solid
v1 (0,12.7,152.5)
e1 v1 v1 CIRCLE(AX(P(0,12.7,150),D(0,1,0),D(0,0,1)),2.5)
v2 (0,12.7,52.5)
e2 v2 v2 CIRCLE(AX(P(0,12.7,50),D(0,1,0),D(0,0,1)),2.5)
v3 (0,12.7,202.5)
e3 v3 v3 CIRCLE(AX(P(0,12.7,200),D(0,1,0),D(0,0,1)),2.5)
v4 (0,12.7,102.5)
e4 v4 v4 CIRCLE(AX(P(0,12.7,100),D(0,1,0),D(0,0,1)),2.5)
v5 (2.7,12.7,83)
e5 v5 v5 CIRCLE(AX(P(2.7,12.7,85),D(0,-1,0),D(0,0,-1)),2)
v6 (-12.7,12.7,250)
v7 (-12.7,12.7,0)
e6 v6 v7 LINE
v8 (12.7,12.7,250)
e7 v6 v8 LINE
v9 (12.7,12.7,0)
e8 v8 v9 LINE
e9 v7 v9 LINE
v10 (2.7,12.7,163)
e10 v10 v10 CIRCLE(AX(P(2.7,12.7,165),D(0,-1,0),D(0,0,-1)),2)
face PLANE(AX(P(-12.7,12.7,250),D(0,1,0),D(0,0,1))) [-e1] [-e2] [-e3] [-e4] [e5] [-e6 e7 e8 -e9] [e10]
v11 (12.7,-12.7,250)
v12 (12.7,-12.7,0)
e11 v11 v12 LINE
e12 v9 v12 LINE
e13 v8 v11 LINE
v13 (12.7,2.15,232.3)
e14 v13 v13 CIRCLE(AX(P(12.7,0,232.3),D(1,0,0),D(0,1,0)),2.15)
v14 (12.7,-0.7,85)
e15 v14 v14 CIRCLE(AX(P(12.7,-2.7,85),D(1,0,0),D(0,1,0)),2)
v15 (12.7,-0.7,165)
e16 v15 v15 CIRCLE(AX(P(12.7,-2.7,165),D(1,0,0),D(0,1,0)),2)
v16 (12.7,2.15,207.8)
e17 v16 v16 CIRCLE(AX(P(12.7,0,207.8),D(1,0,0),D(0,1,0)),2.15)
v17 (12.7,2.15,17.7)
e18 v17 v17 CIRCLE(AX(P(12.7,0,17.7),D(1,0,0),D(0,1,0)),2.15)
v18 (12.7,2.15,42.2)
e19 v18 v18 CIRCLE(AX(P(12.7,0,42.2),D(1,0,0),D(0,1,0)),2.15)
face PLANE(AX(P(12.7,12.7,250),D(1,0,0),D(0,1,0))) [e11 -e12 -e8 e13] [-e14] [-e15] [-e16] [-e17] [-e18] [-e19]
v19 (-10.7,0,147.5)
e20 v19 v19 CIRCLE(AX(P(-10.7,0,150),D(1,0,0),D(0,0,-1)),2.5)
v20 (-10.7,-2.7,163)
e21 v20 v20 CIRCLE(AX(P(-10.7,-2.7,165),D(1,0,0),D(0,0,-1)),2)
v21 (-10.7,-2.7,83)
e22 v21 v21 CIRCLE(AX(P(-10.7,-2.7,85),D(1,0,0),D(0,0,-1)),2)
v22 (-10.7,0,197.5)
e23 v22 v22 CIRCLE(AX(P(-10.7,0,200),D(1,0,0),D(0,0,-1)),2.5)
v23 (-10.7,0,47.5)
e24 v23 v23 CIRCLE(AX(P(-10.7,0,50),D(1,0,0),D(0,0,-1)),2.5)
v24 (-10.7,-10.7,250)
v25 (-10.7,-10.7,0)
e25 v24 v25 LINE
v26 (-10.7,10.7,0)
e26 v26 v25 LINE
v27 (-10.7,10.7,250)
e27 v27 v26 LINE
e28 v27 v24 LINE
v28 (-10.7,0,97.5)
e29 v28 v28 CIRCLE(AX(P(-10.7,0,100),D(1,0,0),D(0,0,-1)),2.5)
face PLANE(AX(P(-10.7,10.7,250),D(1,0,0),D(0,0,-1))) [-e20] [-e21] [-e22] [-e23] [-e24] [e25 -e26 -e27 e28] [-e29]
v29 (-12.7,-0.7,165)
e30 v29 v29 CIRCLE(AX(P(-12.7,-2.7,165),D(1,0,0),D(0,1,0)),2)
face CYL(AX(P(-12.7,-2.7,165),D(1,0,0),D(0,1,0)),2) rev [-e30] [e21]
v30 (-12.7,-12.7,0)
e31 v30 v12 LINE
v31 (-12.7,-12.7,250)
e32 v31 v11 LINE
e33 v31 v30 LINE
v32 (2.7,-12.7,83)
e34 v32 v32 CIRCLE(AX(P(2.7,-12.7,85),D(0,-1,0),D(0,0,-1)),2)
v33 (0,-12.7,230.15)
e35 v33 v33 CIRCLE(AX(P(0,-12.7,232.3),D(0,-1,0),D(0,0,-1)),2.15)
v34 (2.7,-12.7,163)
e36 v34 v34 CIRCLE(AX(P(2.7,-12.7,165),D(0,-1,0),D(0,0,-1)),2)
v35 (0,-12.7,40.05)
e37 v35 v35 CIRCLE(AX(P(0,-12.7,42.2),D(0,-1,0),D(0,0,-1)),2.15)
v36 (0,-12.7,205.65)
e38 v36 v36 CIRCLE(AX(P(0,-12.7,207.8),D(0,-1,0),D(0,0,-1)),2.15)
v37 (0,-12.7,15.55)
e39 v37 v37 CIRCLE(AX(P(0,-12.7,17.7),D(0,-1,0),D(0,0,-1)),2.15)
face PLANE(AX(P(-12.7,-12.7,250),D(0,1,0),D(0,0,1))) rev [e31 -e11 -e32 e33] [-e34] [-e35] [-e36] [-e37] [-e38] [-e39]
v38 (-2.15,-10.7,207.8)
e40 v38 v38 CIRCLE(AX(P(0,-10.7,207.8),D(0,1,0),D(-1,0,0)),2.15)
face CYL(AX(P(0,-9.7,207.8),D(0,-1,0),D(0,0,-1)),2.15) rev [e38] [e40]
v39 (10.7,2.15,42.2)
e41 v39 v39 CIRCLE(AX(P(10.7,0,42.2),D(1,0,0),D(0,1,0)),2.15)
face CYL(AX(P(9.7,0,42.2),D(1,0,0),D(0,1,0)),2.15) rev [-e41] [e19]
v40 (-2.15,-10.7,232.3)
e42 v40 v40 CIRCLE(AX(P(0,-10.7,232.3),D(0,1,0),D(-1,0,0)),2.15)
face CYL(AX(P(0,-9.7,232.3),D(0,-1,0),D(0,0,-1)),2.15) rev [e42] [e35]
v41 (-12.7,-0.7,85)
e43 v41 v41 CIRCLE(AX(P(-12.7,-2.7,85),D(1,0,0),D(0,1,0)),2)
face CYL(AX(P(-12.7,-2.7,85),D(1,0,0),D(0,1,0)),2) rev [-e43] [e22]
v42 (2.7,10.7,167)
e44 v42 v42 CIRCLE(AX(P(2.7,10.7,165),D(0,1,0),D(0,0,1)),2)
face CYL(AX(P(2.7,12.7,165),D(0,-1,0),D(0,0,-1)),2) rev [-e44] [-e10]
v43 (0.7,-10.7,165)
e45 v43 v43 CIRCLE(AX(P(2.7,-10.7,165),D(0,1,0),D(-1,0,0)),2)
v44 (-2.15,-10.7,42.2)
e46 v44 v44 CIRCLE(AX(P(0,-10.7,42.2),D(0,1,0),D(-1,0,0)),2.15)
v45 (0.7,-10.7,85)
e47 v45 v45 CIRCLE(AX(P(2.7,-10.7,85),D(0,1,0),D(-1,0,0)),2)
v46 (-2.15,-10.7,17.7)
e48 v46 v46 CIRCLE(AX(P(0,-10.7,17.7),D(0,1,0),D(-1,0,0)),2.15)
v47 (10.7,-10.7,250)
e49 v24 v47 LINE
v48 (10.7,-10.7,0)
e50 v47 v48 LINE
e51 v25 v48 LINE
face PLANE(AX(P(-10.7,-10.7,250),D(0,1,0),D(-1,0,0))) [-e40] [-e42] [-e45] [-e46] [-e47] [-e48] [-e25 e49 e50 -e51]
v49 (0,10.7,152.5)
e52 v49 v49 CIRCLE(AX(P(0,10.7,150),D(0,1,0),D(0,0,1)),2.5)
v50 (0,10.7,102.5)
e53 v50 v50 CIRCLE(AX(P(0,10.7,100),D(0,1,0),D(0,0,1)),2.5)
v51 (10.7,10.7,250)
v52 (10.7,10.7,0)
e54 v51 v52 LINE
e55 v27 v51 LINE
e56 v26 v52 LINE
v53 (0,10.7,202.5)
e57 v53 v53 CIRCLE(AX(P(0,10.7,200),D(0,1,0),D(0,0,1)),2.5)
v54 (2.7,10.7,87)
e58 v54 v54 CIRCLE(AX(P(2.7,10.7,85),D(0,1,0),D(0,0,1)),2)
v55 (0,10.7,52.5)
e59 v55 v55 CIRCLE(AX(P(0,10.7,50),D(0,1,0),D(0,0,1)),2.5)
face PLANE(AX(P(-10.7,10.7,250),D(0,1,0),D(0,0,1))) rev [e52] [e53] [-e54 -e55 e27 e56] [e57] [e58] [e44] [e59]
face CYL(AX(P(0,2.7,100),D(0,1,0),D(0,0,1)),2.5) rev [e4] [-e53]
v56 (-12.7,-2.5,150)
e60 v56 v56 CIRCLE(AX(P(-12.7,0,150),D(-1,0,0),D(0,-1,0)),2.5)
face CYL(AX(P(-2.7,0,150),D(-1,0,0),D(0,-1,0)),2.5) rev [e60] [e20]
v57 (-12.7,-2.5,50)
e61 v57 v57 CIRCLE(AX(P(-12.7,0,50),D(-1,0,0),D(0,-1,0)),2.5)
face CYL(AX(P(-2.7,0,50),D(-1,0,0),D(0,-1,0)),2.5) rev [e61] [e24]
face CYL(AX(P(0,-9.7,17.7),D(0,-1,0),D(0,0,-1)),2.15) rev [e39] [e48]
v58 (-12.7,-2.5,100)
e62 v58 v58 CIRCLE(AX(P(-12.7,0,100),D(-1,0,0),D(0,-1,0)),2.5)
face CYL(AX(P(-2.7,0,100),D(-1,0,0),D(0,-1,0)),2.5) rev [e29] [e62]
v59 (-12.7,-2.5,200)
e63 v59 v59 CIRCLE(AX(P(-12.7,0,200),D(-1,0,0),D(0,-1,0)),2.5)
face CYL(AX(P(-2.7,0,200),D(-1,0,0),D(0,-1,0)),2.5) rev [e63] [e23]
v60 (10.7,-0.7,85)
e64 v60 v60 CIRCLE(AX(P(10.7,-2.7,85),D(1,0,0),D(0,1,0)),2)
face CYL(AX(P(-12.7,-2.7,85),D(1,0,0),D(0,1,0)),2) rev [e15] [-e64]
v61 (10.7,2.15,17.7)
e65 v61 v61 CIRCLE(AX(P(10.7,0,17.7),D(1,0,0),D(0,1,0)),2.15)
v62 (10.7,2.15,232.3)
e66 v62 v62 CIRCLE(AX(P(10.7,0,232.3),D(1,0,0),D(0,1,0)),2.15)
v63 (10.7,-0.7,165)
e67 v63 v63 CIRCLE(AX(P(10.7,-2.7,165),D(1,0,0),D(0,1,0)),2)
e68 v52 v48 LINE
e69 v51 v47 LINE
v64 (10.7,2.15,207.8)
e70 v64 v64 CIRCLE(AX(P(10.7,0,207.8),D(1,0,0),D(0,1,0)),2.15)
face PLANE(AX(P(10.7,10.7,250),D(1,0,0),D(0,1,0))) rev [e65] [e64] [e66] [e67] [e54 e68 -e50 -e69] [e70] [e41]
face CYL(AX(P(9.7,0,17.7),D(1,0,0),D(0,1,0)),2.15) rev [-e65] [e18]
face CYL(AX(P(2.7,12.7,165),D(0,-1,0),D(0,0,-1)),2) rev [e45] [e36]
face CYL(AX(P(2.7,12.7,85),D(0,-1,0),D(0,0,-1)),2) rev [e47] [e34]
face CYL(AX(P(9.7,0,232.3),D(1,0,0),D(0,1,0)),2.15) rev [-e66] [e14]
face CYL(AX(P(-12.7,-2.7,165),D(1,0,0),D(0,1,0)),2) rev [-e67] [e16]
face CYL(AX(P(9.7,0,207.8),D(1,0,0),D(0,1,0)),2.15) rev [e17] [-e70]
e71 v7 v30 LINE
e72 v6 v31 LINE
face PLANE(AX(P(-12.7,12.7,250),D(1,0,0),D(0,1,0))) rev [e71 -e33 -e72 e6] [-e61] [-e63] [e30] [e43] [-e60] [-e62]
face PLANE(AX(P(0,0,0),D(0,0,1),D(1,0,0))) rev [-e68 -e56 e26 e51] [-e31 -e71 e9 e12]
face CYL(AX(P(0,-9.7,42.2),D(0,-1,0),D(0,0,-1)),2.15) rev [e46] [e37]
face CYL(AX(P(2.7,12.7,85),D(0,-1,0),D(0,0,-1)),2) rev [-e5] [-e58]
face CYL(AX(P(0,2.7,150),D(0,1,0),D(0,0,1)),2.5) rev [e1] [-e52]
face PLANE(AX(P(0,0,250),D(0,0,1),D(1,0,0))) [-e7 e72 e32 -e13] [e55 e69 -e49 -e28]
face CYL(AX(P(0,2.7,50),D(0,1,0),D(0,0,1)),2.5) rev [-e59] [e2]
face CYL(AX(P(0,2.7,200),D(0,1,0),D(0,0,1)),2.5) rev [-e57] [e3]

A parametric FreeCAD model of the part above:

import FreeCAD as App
import Part
import Sketcher
Q = App.Units.Quantity


def add_polygon(sketch, points):
    """Adds a closed chain of lines whose ends are joined by coincident constraints."""
    first, n = sketch.GeometryCount, len(points)
    for a, b in zip(points, points[1:] + points[:1]):
        sketch.addGeometry(Part.LineSegment(App.Vector(*a, 0), App.Vector(*b, 0)), False)
    for i in range(n):
        sketch.addConstraint(Sketcher.Constraint("Coincident", first + i, 2, first + (i + 1) % n, 1))

doc = App.newDocument("Part")
body = doc.addObject("PartDesign::Body", "Body")

# Sketch on XY plane
sketch1 = body.newObject("Sketcher::SketchObject", "Sketch")
sketch1.AttachmentSupport = (doc.getObject("XY_Plane"), [""])
sketch1.MapMode = "FlatFace"
add_polygon(sketch1, [(-13, 13), (-13, -13), (13, -13), (13, 13)])  # lines 0-3
sketch1.addConstraint(Sketcher.Constraint("Vertical", 0))
sketch1.addConstraint(Sketcher.Constraint("Horizontal", 1))
sketch1.addConstraint(Sketcher.Constraint("Vertical", 2))
sketch1.addConstraint(Sketcher.Constraint("Horizontal", 3))
sketch1.addConstraint(Sketcher.Constraint("Symmetric", 0, 2, 2, 2, -1, 1))
sketch1.addConstraint(Sketcher.Constraint("Equal", 3, 0))
sketch1.addConstraint(Sketcher.Constraint("DistanceX", 1, 1, 1, 2, Q("25.4 mm")))
pad1 = body.newObject("PartDesign::Pad", "Pad")
pad1.Profile = sketch1
pad1.Length = 250

# Sketch on XY plane
sketch2 = body.newObject("Sketcher::SketchObject", "Sketch001")
sketch2.AttachmentSupport = (doc.getObject("XY_Plane"), [""])
sketch2.MapMode = "FlatFace"
add_polygon(sketch2, [(-11, 11), (-11, -11), (11, -11), (11, 11)])  # lines 0-3
sketch2.addConstraint(Sketcher.Constraint("Vertical", 0))
sketch2.addConstraint(Sketcher.Constraint("Horizontal", 1))
sketch2.addConstraint(Sketcher.Constraint("Vertical", 2))
sketch2.addConstraint(Sketcher.Constraint("Horizontal", 3))
sketch2.addConstraint(Sketcher.Constraint("Symmetric", 0, 2, 2, 2, -1, 1))
sketch2.addConstraint(Sketcher.Constraint("Equal", 3, 0))
sketch2.addConstraint(Sketcher.Constraint("DistanceX", 1, 1, 1, 2, Q("21.4 mm")))
pocket1 = body.newObject("PartDesign::Pocket", "Pocket")
pocket1.Profile = sketch2
pocket1.Type = "ThroughAll"
pocket1.Reversed = True

# Sketch on YZ plane
sketch3 = body.newObject("Sketcher::SketchObject", "Sketch002")
sketch3.AttachmentSupport = (doc.getObject("YZ_Plane"), [""])
sketch3.MapMode = "FlatFace"
sketch3.AttachmentOffset = App.Placement(App.Vector(0, 0, 12.7), App.Rotation())
sketch3.addGeometry(Part.Circle(App.Vector(0, 232.3, 0), App.Vector(0, 0, 1), 2.1), False)
sketch3.addGeometry(Part.Circle(App.Vector(0, 207.8, 0), App.Vector(0, 0, 1), 2.1), False)
sketch3.addConstraint(Sketcher.Constraint("Equal", 0, 1))
sketch3.addConstraint(Sketcher.Constraint("PointOnObject", 0, 3, -2))
sketch3.addConstraint(Sketcher.Constraint("PointOnObject", 1, 3, -2))
sketch3.addConstraint(Sketcher.Constraint("Diameter", 0, Q("4.3 mm")))
sketch3.addConstraint(Sketcher.Constraint("DistanceY", -1, 1, 0, 3, Q("232.3 mm")))
sketch3.addConstraint(Sketcher.Constraint("DistanceY", -1, 1, 1, 3, Q("207.8 mm")))
pocket2 = body.newObject("PartDesign::Pocket", "Pocket001")
pocket2.Profile = sketch3
pocket2.Length = 3

# Sketch on XZ plane
sketch4 = body.newObject("Sketcher::SketchObject", "Sketch003")
sketch4.AttachmentSupport = (doc.getObject("XZ_Plane"), [""])
sketch4.MapMode = "FlatFace"
sketch4.AttachmentOffset = App.Placement(App.Vector(0, 0, 12.7), App.Rotation())
sketch4.addGeometry(Part.Circle(App.Vector(0, 232.3, 0), App.Vector(0, 0, 1), 2.1), False)
sketch4.addGeometry(Part.Circle(App.Vector(0, 207.8, 0), App.Vector(0, 0, 1), 2.1), False)
sketch4.addConstraint(Sketcher.Constraint("Equal", 0, 1))
sketch4.addConstraint(Sketcher.Constraint("PointOnObject", 0, 3, -2))
sketch4.addConstraint(Sketcher.Constraint("PointOnObject", 1, 3, -2))
sketch4.addConstraint(Sketcher.Constraint("Diameter", 0, Q("4.3 mm")))
sketch4.addConstraint(Sketcher.Constraint("DistanceY", -1, 1, 0, 3, Q("232.3 mm")))
sketch4.addConstraint(Sketcher.Constraint("DistanceY", -1, 1, 1, 3, Q("207.8 mm")))
pocket3 = body.newObject("PartDesign::Pocket", "Pocket002")
pocket3.Profile = sketch4
pocket3.Length = 3

# Sketch on YZ plane
sketch5 = body.newObject("Sketcher::SketchObject", "Sketch004")
sketch5.AttachmentSupport = (doc.getObject("YZ_Plane"), [""])
sketch5.MapMode = "FlatFace"
sketch5.AttachmentOffset = App.Placement(App.Vector(0, 0, 12.7), App.Rotation())
sketch5.addGeometry(Part.Circle(App.Vector(0, 42.2, 0), App.Vector(0, 0, 1), 2.1), False)
sketch5.addGeometry(Part.Circle(App.Vector(0, 17.7, 0), App.Vector(0, 0, 1), 2.1), False)
sketch5.addConstraint(Sketcher.Constraint("Equal", 0, 1))
sketch5.addConstraint(Sketcher.Constraint("PointOnObject", 0, 3, -2))
sketch5.addConstraint(Sketcher.Constraint("PointOnObject", 1, 3, -2))
sketch5.addConstraint(Sketcher.Constraint("Diameter", 0, Q("4.3 mm")))
sketch5.addConstraint(Sketcher.Constraint("DistanceY", -1, 1, 0, 3, Q("42.2 mm")))
sketch5.addConstraint(Sketcher.Constraint("DistanceY", -1, 1, 1, 3, Q("17.7 mm")))
pocket4 = body.newObject("PartDesign::Pocket", "Pocket003")
pocket4.Profile = sketch5
pocket4.Length = 3

# Sketch on XZ plane
sketch6 = body.newObject("Sketcher::SketchObject", "Sketch005")
sketch6.AttachmentSupport = (doc.getObject("XZ_Plane"), [""])
sketch6.MapMode = "FlatFace"
sketch6.AttachmentOffset = App.Placement(App.Vector(0, 0, 12.7), App.Rotation())
sketch6.addGeometry(Part.Circle(App.Vector(0, 42.2, 0), App.Vector(0, 0, 1), 2.2), False)
sketch6.addGeometry(Part.Circle(App.Vector(0, 17.7, 0), App.Vector(0, 0, 1), 2.2), False)
sketch6.addConstraint(Sketcher.Constraint("Equal", 0, 1))
sketch6.addConstraint(Sketcher.Constraint("PointOnObject", 0, 3, -2))
sketch6.addConstraint(Sketcher.Constraint("PointOnObject", 1, 3, -2))
sketch6.addConstraint(Sketcher.Constraint("Diameter", 0, Q("4.3 mm")))
sketch6.addConstraint(Sketcher.Constraint("DistanceY", -1, 1, 0, 3, Q("42.2 mm")))
sketch6.addConstraint(Sketcher.Constraint("DistanceY", -1, 1, 1, 3, Q("17.7 mm")))
pocket5 = body.newObject("PartDesign::Pocket", "Pocket004")
pocket5.Profile = sketch6
pocket5.Length = 3

# Sketch on YZ plane
sketch7 = body.newObject("Sketcher::SketchObject", "Sketch006")
sketch7.AttachmentSupport = (doc.getObject("YZ_Plane"), [""])
sketch7.MapMode = "FlatFace"
sketch7.AttachmentOffset = App.Placement(App.Vector(0, 0, -12.7), App.Rotation())
sketch7.addGeometry(Part.Circle(App.Vector(0, 100, 0), App.Vector(0, 0, 1), 2.5), False)
sketch7.addGeometry(Part.Circle(App.Vector(0, 150, 0), App.Vector(0, 0, 1), 2.5), False)
sketch7.addGeometry(Part.Circle(App.Vector(0, 200, 0), App.Vector(0, 0, 1), 2.5), False)
sketch7.addGeometry(Part.Circle(App.Vector(0, 50, 0), App.Vector(0, 0, 1), 2.5), False)
sketch7.addConstraint(Sketcher.Constraint("Equal", 0, 1))
sketch7.addConstraint(Sketcher.Constraint("Equal", 1, 2))
sketch7.addConstraint(Sketcher.Constraint("Equal", 2, 3))
sketch7.addConstraint(Sketcher.Constraint("PointOnObject", 0, 3, -2))
sketch7.addConstraint(Sketcher.Constraint("PointOnObject", 1, 3, -2))
sketch7.addConstraint(Sketcher.Constraint("PointOnObject", 2, 3, -2))
sketch7.addConstraint(Sketcher.Constraint("PointOnObject", 3, 3, -2))
sketch7.addConstraint(Sketcher.Constraint("Diameter", 0, Q("5 mm")))
sketch7.addConstraint(Sketcher.Constraint("DistanceY", -1, 1, 0, 3, Q("100 mm")))
sketch7.addConstraint(Sketcher.Constraint("DistanceY", -1, 1, 1, 3, Q("150 mm")))
sketch7.addConstraint(Sketcher.Constraint("DistanceY", -1, 1, 2, 3, Q("200 mm")))
sketch7.addConstraint(Sketcher.Constraint("DistanceY", -1, 1, 3, 3, Q("50 mm")))
pocket6 = body.newObject("PartDesign::Pocket", "Pocket005")
pocket6.Profile = sketch7
pocket6.Length = 10
pocket6.Reversed = True

# Sketch on XZ plane
sketch8 = body.newObject("Sketcher::SketchObject", "Sketch007")
sketch8.AttachmentSupport = (doc.getObject("XZ_Plane"), [""])
sketch8.MapMode = "FlatFace"
sketch8.AttachmentOffset = App.Placement(App.Vector(0, 0, -12.7), App.Rotation())
sketch8.addGeometry(Part.Circle(App.Vector(0, 50, 0), App.Vector(0, 0, 1), 2.5), False)
sketch8.addGeometry(Part.Circle(App.Vector(0, 100, 0), App.Vector(0, 0, 1), 2.5), False)
sketch8.addGeometry(Part.Circle(App.Vector(0, 150, 0), App.Vector(0, 0, 1), 2.5), False)
sketch8.addGeometry(Part.Circle(App.Vector(0, 200, 0), App.Vector(0, 0, 1), 2.5), False)
sketch8.addConstraint(Sketcher.Constraint("Equal", 0, 1))
sketch8.addConstraint(Sketcher.Constraint("Equal", 1, 2))
sketch8.addConstraint(Sketcher.Constraint("Equal", 2, 3))
sketch8.addConstraint(Sketcher.Constraint("PointOnObject", 0, 3, -2))
sketch8.addConstraint(Sketcher.Constraint("PointOnObject", 1, 3, -2))
sketch8.addConstraint(Sketcher.Constraint("PointOnObject", 2, 3, -2))
sketch8.addConstraint(Sketcher.Constraint("PointOnObject", 3, 3, -2))
sketch8.addConstraint(Sketcher.Constraint("Diameter", 0, Q("5 mm")))
sketch8.addConstraint(Sketcher.Constraint("DistanceY", -1, 1, 0, 3, Q("50 mm")))
sketch8.addConstraint(Sketcher.Constraint("DistanceY", -1, 1, 1, 3, Q("100 mm")))
sketch8.addConstraint(Sketcher.Constraint("DistanceY", -1, 1, 2, 3, Q("150 mm")))
sketch8.addConstraint(Sketcher.Constraint("DistanceY", -1, 1, 3, 3, Q("200 mm")))
pocket7 = body.newObject("PartDesign::Pocket", "Pocket006")
pocket7.Profile = sketch8
pocket7.Length = 10
pocket7.Reversed = True

# Sketch on XZ plane
sketch9 = body.newObject("Sketcher::SketchObject", "Sketch008")
sketch9.AttachmentSupport = (doc.getObject("XZ_Plane"), [""])
sketch9.MapMode = "FlatFace"
sketch9.AttachmentOffset = App.Placement(App.Vector(0, 0, 12.7), App.Rotation())
sketch9.addGeometry(Part.Circle(App.Vector(2.7, 165, 0), App.Vector(0, 0, 1), 2), False)
sketch9.addGeometry(Part.Circle(App.Vector(2.7, 85, 0), App.Vector(0, 0, 1), 2), False)
sketch9.addConstraint(Sketcher.Constraint("Equal", 0, 1))
sketch9.addConstraint(Sketcher.Constraint("Vertical", 0, 3, 1, 3))
sketch9.addConstraint(Sketcher.Constraint("Diameter", 0, Q("4 mm")))
sketch9.addConstraint(Sketcher.Constraint("DistanceY", -1, 1, 0, 3, Q("165 mm")))
sketch9.addConstraint(Sketcher.Constraint("DistanceY", -1, 1, 1, 3, Q("85 mm")))
sketch9.addConstraint(Sketcher.Constraint("DistanceX", -1, 1, 0, 3, Q("2.7 mm")))
pocket8 = body.newObject("PartDesign::Pocket", "Pocket007")
pocket8.Profile = sketch9
pocket8.Length = 25.4

# Sketch on YZ plane
sketch10 = body.newObject("Sketcher::SketchObject", "Sketch009")
sketch10.AttachmentSupport = (doc.getObject("YZ_Plane"), [""])
sketch10.MapMode = "FlatFace"
sketch10.AttachmentOffset = App.Placement(App.Vector(0, 0, 12.7), App.Rotation())
sketch10.addGeometry(Part.Circle(App.Vector(-2.7, 85, 0), App.Vector(0, 0, 1), 2), False)
sketch10.addGeometry(Part.Circle(App.Vector(-2.7, 165, 0), App.Vector(0, 0, 1), 2), False)
sketch10.addConstraint(Sketcher.Constraint("Equal", 0, 1))
sketch10.addConstraint(Sketcher.Constraint("Vertical", 0, 3, 1, 3))
sketch10.addConstraint(Sketcher.Constraint("Diameter", 0, Q("4 mm")))
sketch10.addConstraint(Sketcher.Constraint("DistanceY", -1, 1, 0, 3, Q("85 mm")))
sketch10.addConstraint(Sketcher.Constraint("DistanceY", -1, 1, 1, 3, Q("165 mm")))
sketch10.addConstraint(Sketcher.Constraint("DistanceX", 0, 3, -1, 1, Q("2.7 mm")))
pocket9 = body.newObject("PartDesign::Pocket", "Pocket008")
pocket9.Profile = sketch10
pocket9.Length = 25.4

doc.recompute()
